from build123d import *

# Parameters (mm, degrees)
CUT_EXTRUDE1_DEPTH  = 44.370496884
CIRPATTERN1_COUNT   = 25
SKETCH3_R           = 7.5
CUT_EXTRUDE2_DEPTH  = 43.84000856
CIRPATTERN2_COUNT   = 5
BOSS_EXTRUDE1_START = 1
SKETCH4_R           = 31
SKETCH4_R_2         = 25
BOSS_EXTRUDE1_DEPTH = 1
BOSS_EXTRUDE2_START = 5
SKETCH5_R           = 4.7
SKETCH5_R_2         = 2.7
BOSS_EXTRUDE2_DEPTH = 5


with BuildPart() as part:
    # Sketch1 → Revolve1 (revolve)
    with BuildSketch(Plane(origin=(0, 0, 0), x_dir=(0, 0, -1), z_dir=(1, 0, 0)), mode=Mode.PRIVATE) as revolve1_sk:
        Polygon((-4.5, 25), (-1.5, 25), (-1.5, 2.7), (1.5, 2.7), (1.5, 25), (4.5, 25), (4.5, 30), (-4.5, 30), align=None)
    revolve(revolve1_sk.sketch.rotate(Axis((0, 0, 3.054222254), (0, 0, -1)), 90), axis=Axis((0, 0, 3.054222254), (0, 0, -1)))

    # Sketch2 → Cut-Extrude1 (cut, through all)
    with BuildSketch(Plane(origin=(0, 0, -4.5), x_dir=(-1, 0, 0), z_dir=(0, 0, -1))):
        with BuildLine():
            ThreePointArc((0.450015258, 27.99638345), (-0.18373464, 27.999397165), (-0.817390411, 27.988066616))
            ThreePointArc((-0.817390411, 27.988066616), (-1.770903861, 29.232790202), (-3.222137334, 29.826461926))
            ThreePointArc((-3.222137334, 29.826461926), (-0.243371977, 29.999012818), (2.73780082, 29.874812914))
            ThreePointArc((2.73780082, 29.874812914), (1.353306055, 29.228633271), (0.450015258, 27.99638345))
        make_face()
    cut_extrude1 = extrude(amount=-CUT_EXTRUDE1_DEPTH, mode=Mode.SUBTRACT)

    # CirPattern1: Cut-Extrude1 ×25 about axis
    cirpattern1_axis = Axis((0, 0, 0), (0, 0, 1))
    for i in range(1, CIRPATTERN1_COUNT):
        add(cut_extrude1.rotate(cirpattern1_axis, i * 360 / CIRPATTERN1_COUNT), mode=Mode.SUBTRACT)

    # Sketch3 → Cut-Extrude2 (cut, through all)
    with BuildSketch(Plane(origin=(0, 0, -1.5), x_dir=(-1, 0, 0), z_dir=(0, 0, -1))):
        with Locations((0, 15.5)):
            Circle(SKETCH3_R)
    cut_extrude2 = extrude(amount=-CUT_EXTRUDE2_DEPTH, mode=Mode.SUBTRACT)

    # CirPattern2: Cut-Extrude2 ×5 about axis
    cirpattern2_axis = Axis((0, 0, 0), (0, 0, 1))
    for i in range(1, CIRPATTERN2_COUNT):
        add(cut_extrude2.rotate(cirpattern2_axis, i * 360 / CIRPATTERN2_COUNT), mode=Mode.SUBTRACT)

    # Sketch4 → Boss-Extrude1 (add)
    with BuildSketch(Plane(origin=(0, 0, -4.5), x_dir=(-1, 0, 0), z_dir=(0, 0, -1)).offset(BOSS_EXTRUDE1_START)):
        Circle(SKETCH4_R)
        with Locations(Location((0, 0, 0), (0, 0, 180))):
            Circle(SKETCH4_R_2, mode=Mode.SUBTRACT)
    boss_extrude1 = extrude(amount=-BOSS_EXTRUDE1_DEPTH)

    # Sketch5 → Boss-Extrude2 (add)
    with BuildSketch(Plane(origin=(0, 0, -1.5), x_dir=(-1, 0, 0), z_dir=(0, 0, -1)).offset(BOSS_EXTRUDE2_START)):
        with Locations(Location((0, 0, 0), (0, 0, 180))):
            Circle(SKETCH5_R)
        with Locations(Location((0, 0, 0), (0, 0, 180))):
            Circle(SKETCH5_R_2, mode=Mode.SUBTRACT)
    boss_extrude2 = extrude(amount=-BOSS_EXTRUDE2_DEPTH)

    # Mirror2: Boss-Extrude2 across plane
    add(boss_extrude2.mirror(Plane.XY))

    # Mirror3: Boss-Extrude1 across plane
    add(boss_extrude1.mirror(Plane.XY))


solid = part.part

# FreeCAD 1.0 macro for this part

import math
import FreeCAD as App
import Part
import Sketcher
Q = App.Units.Quantity

doc = App.newDocument("Part")
body = doc.addObject("PartDesign::Body", "Body")

sketch1 = body.newObject("Sketcher::SketchObject", "Sketch")
sketch1.AttachmentSupport = (doc.getObject("YZ_Plane"), [""])
sketch1.MapMode = "FlatFace"
sketch1.addGeometry([
    Part.LineSegment(App.Vector(25, 4.5, 0), App.Vector(25, 1.5, 0)),
    Part.LineSegment(App.Vector(25, 1.5, 0), App.Vector(2.7, 1.5, 0)),
    Part.LineSegment(App.Vector(2.7, 1.5, 0), App.Vector(2.7, -1.5, 0)),
    Part.LineSegment(App.Vector(2.7, -1.5, 0), App.Vector(25, -1.5, 0)),
    Part.LineSegment(App.Vector(25, -1.5, 0), App.Vector(25, -4.5, 0)),
    Part.LineSegment(App.Vector(25, -4.5, 0), App.Vector(30, -4.5, 0)),
    Part.LineSegment(App.Vector(30, -4.5, 0), App.Vector(30, 4.5, 0)),
    Part.LineSegment(App.Vector(30, 4.5, 0), App.Vector(25, 4.5, 0)),
], False)
sketch1.addConstraint([
    Sketcher.Constraint("Coincident", 0, 2, 1, 1),
    Sketcher.Constraint("Coincident", 1, 2, 2, 1),
    Sketcher.Constraint("Coincident", 2, 2, 3, 1),
    Sketcher.Constraint("Coincident", 3, 2, 4, 1),
    Sketcher.Constraint("Coincident", 4, 2, 5, 1),
    Sketcher.Constraint("Coincident", 5, 2, 6, 1),
    Sketcher.Constraint("Coincident", 6, 2, 7, 1),
    Sketcher.Constraint("Coincident", 7, 2, 0, 1),
    Sketcher.Constraint("Vertical", 0),
    Sketcher.Constraint("Horizontal", 1),
    Sketcher.Constraint("Vertical", 2),
    Sketcher.Constraint("Horizontal", 3),
    Sketcher.Constraint("Vertical", 4),
    Sketcher.Constraint("Horizontal", 5),
    Sketcher.Constraint("Vertical", 6),
    Sketcher.Constraint("Horizontal", 7),
    Sketcher.Constraint("Symmetric", 0, 2, 3, 2, -1),
    Sketcher.Constraint("Equal", 0, 2),
    Sketcher.Constraint("Equal", 2, 4),
    Sketcher.Constraint("DistanceX", 5, 1, 5, 2, Q("5 mm")),
    Sketcher.Constraint("DistanceY", 0, 2, 0, 1, Q("3 mm")),
    Sketcher.Constraint("DistanceX", 1, 2, 1, 1, Q("22.3 mm")),
    Sketcher.Constraint("DistanceX", -1, 1, 0, 2, Q("25 mm")),
])
revolution = body.newObject("PartDesign::Revolution", "Revolution")
revolution.Profile = sketch1
revolution.ReferenceAxis = (sketch1, ["V_Axis"])
revolution.Angle = 360

sketch2 = body.newObject("Sketcher::SketchObject", "Sketch001")
sketch2.AttachmentSupport = (doc.getObject("XY_Plane"), [""])
sketch2.MapMode = "FlatFace"
sketch2.AttachmentOffset = App.Placement(App.Vector(0, 0, -4.5), App.Rotation())
sketch2.addGeometry([
    Part.ArcOfCircle(Part.Circle(App.Vector(0, 0.000002, 0), App.Vector(0, 0, 1), 27.999998), math.radians(88.327154), math.radians(90.920896)),
    Part.ArcOfCircle(Part.Circle(App.Vector(-3.306768, 26.849464, 0), App.Vector(0, 0, 1), 3.078386), math.radians(21.87431), math.radians(79.348986)),
    Part.ArcOfCircle(Part.Circle(App.Vector(0, 0, 0), App.Vector(0, 0, 1), 30), math.radians(83.834278), math.radians(95.2361)),
    Part.ArcOfCircle(Part.Circle(App.Vector(3.592923, 26.849464, 0), App.Vector(0, 0, 1), 3), math.radians(97.099648), math.radians(157.695163)),
], False)
sketch2.addConstraint([
    Sketcher.Constraint("Coincident", 0, 2, 1, 1),
    Sketcher.Constraint("Coincident", 1, 2, 2, 2),
    Sketcher.Constraint("Coincident", 2, 1, 3, 1),
    Sketcher.Constraint("Coincident", 3, 2, 0, 1),
    Sketcher.Constraint("Coincident", 0, 3, -1, 1),
    Sketcher.Constraint("Coincident", 2, 3, -1, 1),
    Sketcher.Constraint("Horizontal", 1, 3, 3, 3),
    Sketcher.Constraint("Radius", 0, Q("27.999998 mm")),
    Sketcher.Constraint("Radius", 2, Q("30 mm")),
    Sketcher.Constraint("Radius", 3, Q("3 mm")),
    Sketcher.Constraint("Radius", 1, Q("3.078386 mm")),
    Sketcher.Constraint("DistanceY", 3, 3, 2, 1, Q("2.976998 mm")),
    Sketcher.Constraint("DistanceX", 1, 2, -1, 1, Q("2.737801 mm")),
    Sketcher.Constraint("DistanceY", -1, 1, 2, 1, Q("29.826462 mm")),
])
pocket1 = body.newObject("PartDesign::Pocket", "Pocket")
pocket1.Profile = sketch2
pocket1.Type = "ThroughAll"
pocket1.Reversed = True
doc.recompute()

polarpattern = body.newObject("PartDesign::PolarPattern", "PolarPattern")
polarpattern.Originals = [pocket1]
polarpattern.Axis = (doc.getObject("Z_Axis"), [""])
polarpattern.Angle = 360
polarpattern.Occurrences = 25
body.Tip = polarpattern

sketch3 = body.newObject("Sketcher::SketchObject", "Sketch002")
sketch3.AttachmentSupport = (doc.getObject("XY_Plane"), [""])
sketch3.MapMode = "FlatFace"
sketch3.AttachmentOffset = App.Placement(App.Vector(0, 0, -1.5), App.Rotation())
sketch3.addGeometry(Part.Circle(App.Vector(0, 15.5, 0), App.Vector(0, 0, 1), 7.5), False)
sketch3.addConstraint([
    Sketcher.Constraint("PointOnObject", 0, 3, -2),
    Sketcher.Constraint("Diameter", 0, Q("15 mm")),
    Sketcher.Constraint("DistanceY", -1, 1, 0, 3, Q("15.5 mm")),
])
pocket2 = body.newObject("PartDesign::Pocket", "Pocket001")
pocket2.Profile = sketch3
pocket2.Type = "ThroughAll"
pocket2.Reversed = True
doc.recompute()

polarpattern2 = body.newObject("PartDesign::PolarPattern", "PolarPattern001")
polarpattern2.Originals = [pocket2]
polarpattern2.Axis = (doc.getObject("Z_Axis"), [""])
polarpattern2.Angle = 360
polarpattern2.Occurrences = 5
body.Tip = polarpattern2

sketch4 = body.newObject("Sketcher::SketchObject", "Sketch003")
sketch4.AttachmentSupport = (doc.getObject("XY_Plane"), [""])
sketch4.MapMode = "FlatFace"
sketch4.AttachmentOffset = App.Placement(App.Vector(0, 0, -5.5), App.Rotation())
sketch4.addGeometry([
    Part.Circle(App.Vector(0, 0, 0), App.Vector(0, 0, 1), 31),
    Part.Circle(App.Vector(0, 0, 0), App.Vector(0, 0, 1), 25),
], False)
sketch4.addConstraint([
    Sketcher.Constraint("Coincident", 0, 3, -1, 1),
    Sketcher.Constraint("Coincident", 1, 3, -1, 1),
    Sketcher.Constraint("Diameter", 0, Q("62 mm")),
    Sketcher.Constraint("Diameter", 1, Q("50 mm")),
])
pad1 = body.newObject("PartDesign::Pad", "Pad")
pad1.Profile = sketch4
pad1.Length = 1

sketch5 = body.newObject("Sketcher::SketchObject", "Sketch004")
sketch5.AttachmentSupport = (doc.getObject("XY_Plane"), [""])
sketch5.MapMode = "FlatFace"
sketch5.AttachmentOffset = App.Placement(App.Vector(0, 0, -6.5), App.Rotation())
sketch5.addGeometry([
    Part.Circle(App.Vector(0, 0, 0), App.Vector(0, 0, 1), 4.7),
    Part.Circle(App.Vector(0, 0, 0), App.Vector(0, 0, 1), 2.7),
], False)
sketch5.addConstraint([
    Sketcher.Constraint("Coincident", 0, 3, -1, 1),
    Sketcher.Constraint("Coincident", 1, 3, -1, 1),
    Sketcher.Constraint("Diameter", 0, Q("9.4 mm")),
    Sketcher.Constraint("Diameter", 1, Q("5.4 mm")),
])
pad2 = body.newObject("PartDesign::Pad", "Pad001")
pad2.Profile = sketch5
pad2.Length = 5
doc.recompute()

mirrored = body.newObject("PartDesign::Mirrored", "Mirrored")
mirrored.Originals = [pad2]
mirrored.MirrorPlane = (doc.getObject("XY_Plane"), [""])
body.Tip = mirrored
doc.recompute()

mirrored2 = body.newObject("PartDesign::Mirrored", "Mirrored001")
mirrored2.Originals = [pad1]
mirrored2.MirrorPlane = (doc.getObject("XY_Plane"), [""])
body.Tip = mirrored2

doc.recompute()
